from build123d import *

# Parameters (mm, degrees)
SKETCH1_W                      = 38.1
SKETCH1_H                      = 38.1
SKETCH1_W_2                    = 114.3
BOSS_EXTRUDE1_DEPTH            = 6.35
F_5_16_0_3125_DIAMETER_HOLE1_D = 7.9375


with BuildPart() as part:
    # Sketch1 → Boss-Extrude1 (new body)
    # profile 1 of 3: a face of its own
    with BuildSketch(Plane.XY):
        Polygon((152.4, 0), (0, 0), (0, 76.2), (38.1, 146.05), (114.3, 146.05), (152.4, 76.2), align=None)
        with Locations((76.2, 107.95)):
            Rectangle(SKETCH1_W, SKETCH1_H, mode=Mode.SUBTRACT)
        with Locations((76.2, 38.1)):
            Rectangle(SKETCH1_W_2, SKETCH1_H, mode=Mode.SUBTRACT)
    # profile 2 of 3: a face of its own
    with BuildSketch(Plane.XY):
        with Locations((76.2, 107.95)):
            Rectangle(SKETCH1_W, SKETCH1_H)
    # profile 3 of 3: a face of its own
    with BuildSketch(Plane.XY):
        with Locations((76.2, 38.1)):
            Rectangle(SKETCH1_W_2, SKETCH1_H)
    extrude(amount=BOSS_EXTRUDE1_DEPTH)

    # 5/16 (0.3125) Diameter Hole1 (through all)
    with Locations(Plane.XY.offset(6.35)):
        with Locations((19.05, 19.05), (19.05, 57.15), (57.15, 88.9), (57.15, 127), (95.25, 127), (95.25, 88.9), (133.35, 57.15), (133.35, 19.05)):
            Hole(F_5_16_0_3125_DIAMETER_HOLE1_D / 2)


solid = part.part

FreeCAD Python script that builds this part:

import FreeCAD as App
import Part
import Sketcher
Q = App.Units.Quantity

doc = App.newDocument("Part")
body = doc.addObject("PartDesign::Body", "Body")

# Sketch on XY plane
sketch1 = doc.addObject("Sketcher::SketchObject", "Sketch")
body.addObject(sketch1)
sketch1.AttachmentSupport = (doc.XY_Plane, [""])
sketch1.MapMode = "FlatFace"
sketch1.addGeometry(Part.LineSegment(App.Vector(0, 0, 0), App.Vector(152.4, 0, 0)), False)
sketch1.addGeometry(Part.LineSegment(App.Vector(152.4, 0, 0), App.Vector(152.4, 76.2, 0)), False)
sketch1.addGeometry(Part.LineSegment(App.Vector(152.4, 76.2, 0), App.Vector(114.3, 146.05, 0)), False)
sketch1.addGeometry(Part.LineSegment(App.Vector(114.3, 146.05, 0), App.Vector(38.1, 146.05, 0)), False)
sketch1.addGeometry(Part.LineSegment(App.Vector(38.1, 146.05, 0), App.Vector(0, 76.2, 0)), False)
sketch1.addGeometry(Part.LineSegment(App.Vector(0, 76.2, 0), App.Vector(0, 0, 0)), False)
sketch1.addConstraint(Sketcher.Constraint("Coincident", 0, 2, 1, 1))
sketch1.addConstraint(Sketcher.Constraint("Coincident", 1, 2, 2, 1))
sketch1.addConstraint(Sketcher.Constraint("Coincident", 2, 2, 3, 1))
sketch1.addConstraint(Sketcher.Constraint("Coincident", 3, 2, 4, 1))
sketch1.addConstraint(Sketcher.Constraint("Coincident", 4, 2, 5, 1))
sketch1.addConstraint(Sketcher.Constraint("Coincident", 5, 2, 0, 1))
sketch1.addConstraint(Sketcher.Constraint("Horizontal", 0))
sketch1.addConstraint(Sketcher.Constraint("Vertical", 1))
sketch1.addConstraint(Sketcher.Constraint("Horizontal", 3))
sketch1.addConstraint(Sketcher.Constraint("Vertical", 5))
sketch1.addConstraint(Sketcher.Constraint("Coincident", 5, 2, -1, 1))
sketch1.addConstraint(Sketcher.Constraint("Horizontal", 1, 2, 4, 2))
sketch1.addConstraint(Sketcher.Constraint("Equal", 3, 1))
sketch1.addConstraint(Sketcher.Constraint("Equal", 2, 4))
sketch1.addConstraint(Sketcher.Constraint("DistanceX", 0, 1, 0, 2, Q("6 in")))
sketch1.addConstraint(Sketcher.Constraint("DistanceX", 3, 2, 3, 1, Q("3 in")))
sketch1.addConstraint(Sketcher.Constraint("DistanceY", -1, 1, 2, 2, Q("5.75 in")))
pad1 = doc.addObject("PartDesign::Pad", "Pad")
body.addObject(pad1)
pad1.Profile = sketch1
pad1.Length = Q("0.25 in")

# Sketch on XY plane
sketch2 = doc.addObject("Sketcher::SketchObject", "Sketch001")
body.addObject(sketch2)
sketch2.AttachmentSupport = (doc.XY_Plane, [""])
sketch2.MapMode = "FlatFace"
sketch2.AttachmentOffset = App.Placement(App.Vector(0, 0, 0.25 * 25.4), App.Rotation())
sketch2.addGeometry(Part.Circle(App.Vector(19.05, 19.05, 0), App.Vector(0, 0, 1), 3.96875), False)
sketch2.addGeometry(Part.Circle(App.Vector(19.05, 57.15, 0), App.Vector(0, 0, 1), 3.96875), False)
sketch2.addGeometry(Part.Circle(App.Vector(57.15, 88.9, 0), App.Vector(0, 0, 1), 3.96875), False)
sketch2.addGeometry(Part.Circle(App.Vector(57.15, 127, 0), App.Vector(0, 0, 1), 3.96875), False)
sketch2.addGeometry(Part.Circle(App.Vector(95.25, 127, 0), App.Vector(0, 0, 1), 3.96875), False)
sketch2.addGeometry(Part.Circle(App.Vector(95.25, 88.9, 0), App.Vector(0, 0, 1), 3.96875), False)
sketch2.addGeometry(Part.Circle(App.Vector(133.35, 57.15, 0), App.Vector(0, 0, 1), 3.96875), False)
sketch2.addGeometry(Part.Circle(App.Vector(133.35, 19.05, 0), App.Vector(0, 0, 1), 3.96875), False)
sketch2.addConstraint(Sketcher.Constraint("Equal", 0, 1))
sketch2.addConstraint(Sketcher.Constraint("Equal", 1, 2))
sketch2.addConstraint(Sketcher.Constraint("Equal", 2, 3))
sketch2.addConstraint(Sketcher.Constraint("Equal", 3, 4))
sketch2.addConstraint(Sketcher.Constraint("Equal", 4, 5))
sketch2.addConstraint(Sketcher.Constraint("Equal", 5, 6))
sketch2.addConstraint(Sketcher.Constraint("Equal", 6, 7))
sketch2.addConstraint(Sketcher.Constraint("Horizontal", 3, 3, 4, 3))
sketch2.addConstraint(Sketcher.Constraint("Horizontal", 2, 3, 5, 3))
sketch2.addConstraint(Sketcher.Constraint("Horizontal", 1, 3, 6, 3))
sketch2.addConstraint(Sketcher.Constraint("Horizontal", 0, 3, 7, 3))
sketch2.addConstraint(Sketcher.Constraint("Vertical", 0, 3, 1, 3))
sketch2.addConstraint(Sketcher.Constraint("Vertical", 2, 3, 3, 3))
sketch2.addConstraint(Sketcher.Constraint("Vertical", 4, 3, 5, 3))
sketch2.addConstraint(Sketcher.Constraint("Vertical", 6, 3, 7, 3))
sketch2.addConstraint(Sketcher.Constraint("Diameter", 0, Q("0.3125 in")))
sketch2.addConstraint(Sketcher.Constraint("DistanceY", -1, 1, 3, 3, Q("5 in")))
sketch2.addConstraint(Sketcher.Constraint("DistanceX", 1, 3, 4, 3, Q("3 in")))
sketch2.addConstraint(Sketcher.Constraint("DistanceX", 2, 3, 6, 3, Q("3 in")))
sketch2.addConstraint(Sketcher.Constraint("DistanceY", -1, 1, 2, 3, Q("3.5 in")))
sketch2.addConstraint(Sketcher.Constraint("DistanceY", 0, 3, 1, 3, Q("1.5 in")))
sketch2.addConstraint(Sketcher.Constraint("DistanceX", 1, 3, 2, 3, Q("1.5 in")))
sketch2.addConstraint(Sketcher.Constraint("DistanceX", -1, 1, 0, 3, Q("0.75 in")))
sketch2.addConstraint(Sketcher.Constraint("DistanceY", -1, 1, 0, 3, Q("0.75 in")))
doc.recompute()
hole = doc.addObject("PartDesign::Hole", "Hole")
body.addObject(hole)
hole.Profile = sketch2
hole.ThreadType = "None"
hole.Diameter = Q("0.3125 in")
hole.DepthType = "ThroughAll"

doc.recompute()
